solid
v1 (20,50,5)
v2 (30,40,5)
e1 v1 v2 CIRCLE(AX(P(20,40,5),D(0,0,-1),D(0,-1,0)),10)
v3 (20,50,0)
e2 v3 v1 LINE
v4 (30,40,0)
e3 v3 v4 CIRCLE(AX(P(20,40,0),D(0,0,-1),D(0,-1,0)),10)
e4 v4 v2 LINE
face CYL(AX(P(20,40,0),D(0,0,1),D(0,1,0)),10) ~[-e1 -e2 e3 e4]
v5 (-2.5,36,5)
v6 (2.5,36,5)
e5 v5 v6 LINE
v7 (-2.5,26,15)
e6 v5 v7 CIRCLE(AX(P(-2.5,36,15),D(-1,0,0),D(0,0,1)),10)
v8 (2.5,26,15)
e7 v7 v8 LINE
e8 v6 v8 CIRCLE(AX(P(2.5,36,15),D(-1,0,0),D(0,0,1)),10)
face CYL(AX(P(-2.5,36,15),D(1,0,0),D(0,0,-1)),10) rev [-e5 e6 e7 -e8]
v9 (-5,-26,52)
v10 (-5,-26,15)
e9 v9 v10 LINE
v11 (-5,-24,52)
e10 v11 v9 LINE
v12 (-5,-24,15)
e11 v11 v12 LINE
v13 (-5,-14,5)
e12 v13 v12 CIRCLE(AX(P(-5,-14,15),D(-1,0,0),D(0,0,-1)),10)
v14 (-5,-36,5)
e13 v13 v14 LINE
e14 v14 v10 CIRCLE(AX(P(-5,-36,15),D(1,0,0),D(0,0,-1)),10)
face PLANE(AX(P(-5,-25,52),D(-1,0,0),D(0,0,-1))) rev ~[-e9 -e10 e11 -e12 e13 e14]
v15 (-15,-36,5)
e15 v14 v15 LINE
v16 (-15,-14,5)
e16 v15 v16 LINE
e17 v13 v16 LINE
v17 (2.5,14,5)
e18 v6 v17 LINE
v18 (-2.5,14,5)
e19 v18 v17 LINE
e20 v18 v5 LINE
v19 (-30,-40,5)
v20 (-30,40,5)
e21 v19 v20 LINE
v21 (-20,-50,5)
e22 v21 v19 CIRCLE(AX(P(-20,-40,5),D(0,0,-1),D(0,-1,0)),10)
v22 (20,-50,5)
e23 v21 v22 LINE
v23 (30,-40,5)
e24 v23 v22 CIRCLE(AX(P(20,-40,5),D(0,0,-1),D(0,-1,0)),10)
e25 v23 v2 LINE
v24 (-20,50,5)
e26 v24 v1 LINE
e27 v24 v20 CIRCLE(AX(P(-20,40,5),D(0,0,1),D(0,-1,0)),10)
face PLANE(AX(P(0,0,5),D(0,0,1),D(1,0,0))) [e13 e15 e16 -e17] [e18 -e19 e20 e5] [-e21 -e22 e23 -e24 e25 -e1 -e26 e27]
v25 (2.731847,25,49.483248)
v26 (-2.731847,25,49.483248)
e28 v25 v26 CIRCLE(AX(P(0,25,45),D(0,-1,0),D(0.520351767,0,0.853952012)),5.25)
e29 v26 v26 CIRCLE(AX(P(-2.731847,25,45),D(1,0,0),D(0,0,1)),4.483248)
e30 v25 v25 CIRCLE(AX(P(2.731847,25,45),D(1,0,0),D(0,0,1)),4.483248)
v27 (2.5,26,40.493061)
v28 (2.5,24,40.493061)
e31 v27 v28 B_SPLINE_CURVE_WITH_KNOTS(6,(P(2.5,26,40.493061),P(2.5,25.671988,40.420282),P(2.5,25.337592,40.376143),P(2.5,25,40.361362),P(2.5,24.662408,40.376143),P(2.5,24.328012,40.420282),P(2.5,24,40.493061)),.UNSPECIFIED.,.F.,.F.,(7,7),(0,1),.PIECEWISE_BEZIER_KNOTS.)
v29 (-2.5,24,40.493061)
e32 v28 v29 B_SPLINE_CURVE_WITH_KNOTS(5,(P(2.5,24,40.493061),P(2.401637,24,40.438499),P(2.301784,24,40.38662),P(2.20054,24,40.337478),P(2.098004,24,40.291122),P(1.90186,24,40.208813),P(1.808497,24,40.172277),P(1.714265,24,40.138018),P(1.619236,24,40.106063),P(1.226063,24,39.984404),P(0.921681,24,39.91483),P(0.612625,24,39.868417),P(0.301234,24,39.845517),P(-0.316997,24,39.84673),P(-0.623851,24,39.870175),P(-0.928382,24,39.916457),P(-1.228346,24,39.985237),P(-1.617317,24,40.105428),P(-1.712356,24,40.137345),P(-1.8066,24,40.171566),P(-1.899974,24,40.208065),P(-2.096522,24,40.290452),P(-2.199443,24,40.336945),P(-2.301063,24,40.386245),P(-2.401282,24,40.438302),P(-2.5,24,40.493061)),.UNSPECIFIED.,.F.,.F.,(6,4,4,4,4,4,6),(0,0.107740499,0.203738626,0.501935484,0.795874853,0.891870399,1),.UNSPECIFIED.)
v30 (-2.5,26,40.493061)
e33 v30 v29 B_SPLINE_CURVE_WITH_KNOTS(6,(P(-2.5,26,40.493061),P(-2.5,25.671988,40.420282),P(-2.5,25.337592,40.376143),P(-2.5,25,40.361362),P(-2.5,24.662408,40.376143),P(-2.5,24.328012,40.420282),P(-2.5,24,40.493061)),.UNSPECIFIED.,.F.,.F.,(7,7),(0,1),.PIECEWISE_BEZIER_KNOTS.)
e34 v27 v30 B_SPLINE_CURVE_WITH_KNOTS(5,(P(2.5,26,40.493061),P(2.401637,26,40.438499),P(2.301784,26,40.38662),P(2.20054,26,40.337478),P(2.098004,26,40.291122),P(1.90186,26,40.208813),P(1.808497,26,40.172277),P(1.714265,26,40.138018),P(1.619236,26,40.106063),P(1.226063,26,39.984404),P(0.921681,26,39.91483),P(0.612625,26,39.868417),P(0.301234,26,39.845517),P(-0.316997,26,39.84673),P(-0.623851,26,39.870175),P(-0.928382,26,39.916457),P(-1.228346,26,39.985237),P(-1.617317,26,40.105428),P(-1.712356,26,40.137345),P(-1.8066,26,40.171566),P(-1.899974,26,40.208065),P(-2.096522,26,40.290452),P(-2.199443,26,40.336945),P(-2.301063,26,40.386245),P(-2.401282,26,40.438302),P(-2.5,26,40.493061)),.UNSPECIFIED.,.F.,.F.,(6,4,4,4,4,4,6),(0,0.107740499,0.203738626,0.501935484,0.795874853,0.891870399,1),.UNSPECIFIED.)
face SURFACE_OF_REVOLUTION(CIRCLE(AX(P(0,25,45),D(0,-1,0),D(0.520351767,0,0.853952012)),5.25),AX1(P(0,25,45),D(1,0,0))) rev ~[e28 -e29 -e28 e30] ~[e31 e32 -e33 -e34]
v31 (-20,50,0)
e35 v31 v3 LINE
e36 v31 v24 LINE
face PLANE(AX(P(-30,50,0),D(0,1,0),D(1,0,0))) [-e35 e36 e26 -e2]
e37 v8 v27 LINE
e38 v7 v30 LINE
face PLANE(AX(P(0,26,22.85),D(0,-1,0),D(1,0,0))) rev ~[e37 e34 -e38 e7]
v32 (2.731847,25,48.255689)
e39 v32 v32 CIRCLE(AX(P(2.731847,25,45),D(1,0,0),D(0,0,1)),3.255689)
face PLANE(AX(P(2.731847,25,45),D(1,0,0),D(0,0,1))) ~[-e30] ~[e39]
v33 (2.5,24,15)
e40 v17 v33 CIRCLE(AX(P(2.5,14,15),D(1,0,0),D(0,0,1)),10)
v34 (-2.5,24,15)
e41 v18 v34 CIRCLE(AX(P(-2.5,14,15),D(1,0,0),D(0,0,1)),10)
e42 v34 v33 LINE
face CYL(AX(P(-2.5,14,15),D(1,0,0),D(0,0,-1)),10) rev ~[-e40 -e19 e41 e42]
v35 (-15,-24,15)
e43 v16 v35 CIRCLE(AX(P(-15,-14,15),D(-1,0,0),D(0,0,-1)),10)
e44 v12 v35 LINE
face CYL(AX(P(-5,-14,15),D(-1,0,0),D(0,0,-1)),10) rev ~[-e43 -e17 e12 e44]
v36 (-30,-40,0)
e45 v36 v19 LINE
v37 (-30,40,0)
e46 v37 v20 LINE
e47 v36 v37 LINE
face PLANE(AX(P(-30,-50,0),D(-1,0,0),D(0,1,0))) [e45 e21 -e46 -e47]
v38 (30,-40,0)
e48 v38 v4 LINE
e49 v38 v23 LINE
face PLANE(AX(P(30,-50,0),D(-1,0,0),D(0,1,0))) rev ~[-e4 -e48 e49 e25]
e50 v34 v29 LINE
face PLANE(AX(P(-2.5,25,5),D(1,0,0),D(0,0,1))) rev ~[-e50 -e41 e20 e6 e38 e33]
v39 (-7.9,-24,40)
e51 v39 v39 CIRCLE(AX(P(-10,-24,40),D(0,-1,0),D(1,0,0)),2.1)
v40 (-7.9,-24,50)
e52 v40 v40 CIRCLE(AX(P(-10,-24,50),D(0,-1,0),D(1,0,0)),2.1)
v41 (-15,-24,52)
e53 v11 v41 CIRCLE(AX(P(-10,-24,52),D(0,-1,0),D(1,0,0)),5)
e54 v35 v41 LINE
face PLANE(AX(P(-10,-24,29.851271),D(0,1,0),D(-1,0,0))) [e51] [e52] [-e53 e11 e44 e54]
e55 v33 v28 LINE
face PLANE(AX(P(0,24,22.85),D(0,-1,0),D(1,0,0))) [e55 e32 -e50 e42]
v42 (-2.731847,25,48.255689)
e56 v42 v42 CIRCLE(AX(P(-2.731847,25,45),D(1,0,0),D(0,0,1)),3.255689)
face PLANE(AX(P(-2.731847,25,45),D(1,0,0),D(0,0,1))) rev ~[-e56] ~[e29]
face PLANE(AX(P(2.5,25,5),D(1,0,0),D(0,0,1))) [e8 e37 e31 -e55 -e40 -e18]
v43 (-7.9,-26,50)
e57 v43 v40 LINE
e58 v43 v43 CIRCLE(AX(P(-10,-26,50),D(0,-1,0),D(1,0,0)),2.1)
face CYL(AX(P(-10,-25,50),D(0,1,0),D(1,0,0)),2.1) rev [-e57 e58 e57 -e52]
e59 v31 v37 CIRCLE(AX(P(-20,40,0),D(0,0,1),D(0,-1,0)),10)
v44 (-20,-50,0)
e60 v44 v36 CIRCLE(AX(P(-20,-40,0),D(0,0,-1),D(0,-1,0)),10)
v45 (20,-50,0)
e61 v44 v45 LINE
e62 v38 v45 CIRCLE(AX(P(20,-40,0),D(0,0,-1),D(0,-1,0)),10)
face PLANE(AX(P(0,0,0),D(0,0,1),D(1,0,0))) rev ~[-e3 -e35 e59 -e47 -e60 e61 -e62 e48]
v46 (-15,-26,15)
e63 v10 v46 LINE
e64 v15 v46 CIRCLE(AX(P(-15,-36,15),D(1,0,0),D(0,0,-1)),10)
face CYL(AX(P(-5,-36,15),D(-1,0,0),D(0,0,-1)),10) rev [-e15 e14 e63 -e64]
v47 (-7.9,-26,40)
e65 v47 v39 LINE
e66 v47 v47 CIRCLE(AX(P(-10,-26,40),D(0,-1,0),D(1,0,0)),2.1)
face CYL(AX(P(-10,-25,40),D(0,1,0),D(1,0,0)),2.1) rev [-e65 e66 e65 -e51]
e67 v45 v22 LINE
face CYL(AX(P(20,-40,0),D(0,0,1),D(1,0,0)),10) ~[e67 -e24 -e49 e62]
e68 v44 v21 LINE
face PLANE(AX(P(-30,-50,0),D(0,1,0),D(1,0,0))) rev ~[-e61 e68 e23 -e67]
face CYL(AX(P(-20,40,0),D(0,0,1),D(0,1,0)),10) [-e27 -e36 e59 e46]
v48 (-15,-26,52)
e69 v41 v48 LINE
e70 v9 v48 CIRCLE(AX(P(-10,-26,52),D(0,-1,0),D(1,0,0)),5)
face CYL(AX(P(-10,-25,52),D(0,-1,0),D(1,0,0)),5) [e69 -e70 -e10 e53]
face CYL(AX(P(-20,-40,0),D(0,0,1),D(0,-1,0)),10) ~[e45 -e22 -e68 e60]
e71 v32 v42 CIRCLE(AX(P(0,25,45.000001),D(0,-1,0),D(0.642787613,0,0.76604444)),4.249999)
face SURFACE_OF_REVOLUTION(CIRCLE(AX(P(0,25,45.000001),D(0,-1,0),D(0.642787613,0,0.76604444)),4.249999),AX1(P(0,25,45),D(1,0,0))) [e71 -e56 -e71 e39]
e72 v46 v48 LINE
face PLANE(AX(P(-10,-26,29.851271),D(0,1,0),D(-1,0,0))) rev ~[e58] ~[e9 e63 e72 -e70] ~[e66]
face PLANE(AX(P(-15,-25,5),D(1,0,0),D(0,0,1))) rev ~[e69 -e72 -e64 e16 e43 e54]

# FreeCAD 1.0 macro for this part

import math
import FreeCAD as App
import Part
import Sketcher
Q = App.Units.Quantity


def edges_at(feature, points):
    """Names of the edges that pass closest to the given points."""
    edges = feature.Shape.Edges
    near = lambda p: min(range(len(edges)), key=lambda i: edges[i].distToShape(Part.Vertex(*p))[0])
    return sorted({f"Edge{near(p) + 1}" for p in points})


def add_polygon(sketch, points):
    """Adds a closed chain of lines whose ends are joined by coincident constraints."""
    first, n = sketch.GeometryCount, len(points)
    for a, b in zip(points, points[1:] + points[:1]):
        sketch.addGeometry(Part.LineSegment(App.Vector(*a, 0), App.Vector(*b, 0)), False)
    for i in range(n):
        sketch.addConstraint(Sketcher.Constraint("Coincident", first + i, 2, first + (i + 1) % n, 1))

doc = App.newDocument("Part")
body = doc.addObject("PartDesign::Body", "Body")

# Sketch on XY plane
sketch1 = doc.addObject("Sketcher::SketchObject", "Sketch")
body.addObject(sketch1)
sketch1.AttachmentSupport = (doc.XY_Plane, [""])
sketch1.MapMode = "FlatFace"
add_polygon(sketch1, [(-30, 50), (-30, -50), (30, -50), (30, 50)])  # lines 0-3
sketch1.addConstraint(Sketcher.Constraint("Vertical", 0))
sketch1.addConstraint(Sketcher.Constraint("Horizontal", 1))
sketch1.addConstraint(Sketcher.Constraint("Vertical", 2))
sketch1.addConstraint(Sketcher.Constraint("Horizontal", 3))
sketch1.addConstraint(Sketcher.Constraint("Symmetric", 0, 2, 2, 2, -1, 1))
sketch1.addConstraint(Sketcher.Constraint("DistanceX", 1, 1, 1, 2, Q("60 mm")))
sketch1.addConstraint(Sketcher.Constraint("DistanceY", 0, 2, 0, 1, Q("100 mm")))
pad1 = doc.addObject("PartDesign::Pad", "Pad")
body.addObject(pad1)
pad1.Profile = sketch1
pad1.Length = 5

# Sketch on XZ plane
sketch2 = doc.addObject("Sketcher::SketchObject", "Sketch001")
body.addObject(sketch2)
sketch2.AttachmentSupport = (doc.XZ_Plane, [""])
sketch2.MapMode = "FlatFace"
sketch2.AttachmentOffset = App.Placement(App.Vector(0, 0, 25), App.Rotation())
sketch2.addGeometry(Part.LineSegment(App.Vector(-5, 5, 0), App.Vector(-5, 52, 0)), False)
sketch2.addGeometry(Part.ArcOfCircle(Part.Circle(App.Vector(-10, 52, 0), App.Vector(0, 0, 1), 5), math.radians(0), math.radians(180)), False)
sketch2.addGeometry(Part.LineSegment(App.Vector(-15, 52, 0), App.Vector(-15, 5, 0)), False)
sketch2.addGeometry(Part.LineSegment(App.Vector(-15, 5, 0), App.Vector(-5, 5, 0)), False)
sketch2.addGeometry(Part.Circle(App.Vector(-10, 40, 0), App.Vector(0, 0, 1), 2.1), False)
sketch2.addGeometry(Part.Circle(App.Vector(-10, 50, 0), App.Vector(0, 0, 1), 2.1), False)
sketch2.addConstraint(Sketcher.Constraint("Tangent", 0, 2, 1, 1))
sketch2.addConstraint(Sketcher.Constraint("Tangent", 1, 2, 2, 1))
sketch2.addConstraint(Sketcher.Constraint("Coincident", 2, 2, 3, 1))
sketch2.addConstraint(Sketcher.Constraint("Coincident", 3, 2, 0, 1))
sketch2.addConstraint(Sketcher.Constraint("Vertical", 0))
sketch2.addConstraint(Sketcher.Constraint("Vertical", 2))
sketch2.addConstraint(Sketcher.Constraint("Horizontal", 3))
sketch2.addConstraint(Sketcher.Constraint("Equal", 4, 5))
sketch2.addConstraint(Sketcher.Constraint("Vertical", 1, 3, 4, 3))
sketch2.addConstraint(Sketcher.Constraint("Vertical", 4, 3, 5, 3))
sketch2.addConstraint(Sketcher.Constraint("Radius", 1, Q("5 mm")))
sketch2.addConstraint(Sketcher.Constraint("Diameter", 4, Q("4.2 mm")))
sketch2.addConstraint(Sketcher.Constraint("DistanceY", 0, 1, 0, 2, Q("47 mm")))
sketch2.addConstraint(Sketcher.Constraint("DistanceX", 1, 3, -1, 1, Q("10 mm")))
sketch2.addConstraint(Sketcher.Constraint("DistanceY", -1, 1, 1, 3, Q("52 mm")))
sketch2.addConstraint(Sketcher.Constraint("DistanceY", -1, 1, 4, 3, Q("40 mm")))
sketch2.addConstraint(Sketcher.Constraint("DistanceY", -1, 1, 5, 3, Q("50 mm")))
pad2 = doc.addObject("PartDesign::Pad", "Pad001")
body.addObject(pad2)
pad2.Profile = sketch2
pad2.Length = 2
pad2.Midplane = True

# Sketch on XZ plane
sketch3 = doc.addObject("Sketcher::SketchObject", "Sketch002")
body.addObject(sketch3)
sketch3.AttachmentSupport = (doc.XZ_Plane, [""])
sketch3.MapMode = "FlatFace"
sketch3.AttachmentOffset = App.Placement(App.Vector(0, 0, -25), App.Rotation())
add_polygon(sketch3, [(-2.5, 40.7), (-2.5, 5), (2.5, 5), (2.5, 40.7)])  # lines 0-3
sketch3.addConstraint(Sketcher.Constraint("Vertical", 0))
sketch3.addConstraint(Sketcher.Constraint("Horizontal", 1))
sketch3.addConstraint(Sketcher.Constraint("Vertical", 2))
sketch3.addConstraint(Sketcher.Constraint("Horizontal", 3))
sketch3.addConstraint(Sketcher.Constraint("DistanceX", 1, 1, 1, 2, Q("5 mm")))
sketch3.addConstraint(Sketcher.Constraint("DistanceY", 0, 2, 0, 1, Q("35.7 mm")))
sketch3.addConstraint(Sketcher.Constraint("DistanceY", -1, 1, 0, 2, Q("5 mm")))
sketch3.addConstraint(Sketcher.Constraint("DistanceX", 0, 2, -1, 1, Q("2.5 mm")))
pad3 = doc.addObject("PartDesign::Pad", "Pad002")
body.addObject(pad3)
pad3.Profile = sketch3
pad3.Length = 2
pad3.Midplane = True

# Sketch on XZ plane
sketch4 = doc.addObject("Sketcher::SketchObject", "Sketch003")
body.addObject(sketch4)
sketch4.AttachmentSupport = (doc.XZ_Plane, [""])
sketch4.MapMode = "FlatFace"
sketch4.AttachmentOffset = App.Placement(App.Vector(0, 0, -25), App.Rotation())
sketch4.addGeometry(Part.ArcOfCircle(Part.Circle(App.Vector(0, 45.000001, 0), App.Vector(0, 0, 1), 4.249999), math.radians(50), math.radians(130)), False)
sketch4.addGeometry(Part.LineSegment(App.Vector(2.731847, 48.255689, 0), App.Vector(2.731847, 49.483248, 0)), False)
sketch4.addGeometry(Part.ArcOfCircle(Part.Circle(App.Vector(0, 45, 0), App.Vector(0, 0, 1), 5.25), math.radians(58.64415), math.radians(121.35585)), False)
sketch4.addGeometry(Part.LineSegment(App.Vector(-2.731847, 49.483248, 0), App.Vector(-2.731847, 48.255689, 0)), False)
sketch4.addGeometry(Part.LineSegment(App.Vector(-2.731847, 45, 0), App.Vector(2.731847, 45, 0)), True)  # axis
sketch4.addConstraint(Sketcher.Constraint("Coincident", 0, 1, 1, 1))
sketch4.addConstraint(Sketcher.Constraint("Coincident", 1, 2, 2, 1))
sketch4.addConstraint(Sketcher.Constraint("Coincident", 2, 2, 3, 1))
sketch4.addConstraint(Sketcher.Constraint("Coincident", 3, 2, 0, 2))
sketch4.addConstraint(Sketcher.Constraint("Vertical", 1))
sketch4.addConstraint(Sketcher.Constraint("Vertical", 3))
sketch4.addConstraint(Sketcher.Constraint("Horizontal", 4))
sketch4.addConstraint(Sketcher.Constraint("Coincident", 2, 3, 0, 3))
sketch4.addConstraint(Sketcher.Constraint("Symmetric", 1, 2, 2, 2, -2))
sketch4.addConstraint(Sketcher.Constraint("Horizontal", 2, 3, 4, 1))
sketch4.addConstraint(Sketcher.Constraint("Vertical", 3, 2, 4, 1))
sketch4.addConstraint(Sketcher.Constraint("Vertical", 1, 2, 4, 2))
sketch4.addConstraint(Sketcher.Constraint("Radius", 0, Q("4.249999 mm")))
sketch4.addConstraint(Sketcher.Constraint("Radius", 2, Q("5.25 mm")))
sketch4.addConstraint(Sketcher.Constraint("DistanceY", -1, 1, 0, 3, Q("45.000001 mm")))
sketch4.addConstraint(Sketcher.Constraint("DistanceY", 1, 1, 1, 2, Q("1.227559 mm")))
revolution = doc.addObject("PartDesign::Revolution", "Revolution")
body.addObject(revolution)
revolution.Profile = sketch4
revolution.ReferenceAxis = (sketch4, ["Axis0"])
revolution.Angle = 360
doc.recompute()

fillet = doc.addObject("PartDesign::Fillet", "Fillet")
body.addObject(fillet)
fillet.Base = (revolution, edges_at(revolution, [(-10, -26, 5), (-10, -24, 5)]))
fillet.Radius = 10
doc.recompute()

fillet2 = doc.addObject("PartDesign::Fillet", "Fillet001")
body.addObject(fillet2)
fillet2.Base = (fillet, edges_at(fillet, [(0, 24, 5), (0, 26, 5)]))
fillet2.Radius = 10
doc.recompute()

fillet3 = doc.addObject("PartDesign::Fillet", "Fillet002")
body.addObject(fillet3)
fillet3.Base = (fillet2, edges_at(fillet2, [
    (-30, -50, 2.5),
    (-30, 50, 2.5),
    (30, 50, 2.5),
    (30, -50, 2.5),
]))
fillet3.Radius = 10

doc.recompute()
